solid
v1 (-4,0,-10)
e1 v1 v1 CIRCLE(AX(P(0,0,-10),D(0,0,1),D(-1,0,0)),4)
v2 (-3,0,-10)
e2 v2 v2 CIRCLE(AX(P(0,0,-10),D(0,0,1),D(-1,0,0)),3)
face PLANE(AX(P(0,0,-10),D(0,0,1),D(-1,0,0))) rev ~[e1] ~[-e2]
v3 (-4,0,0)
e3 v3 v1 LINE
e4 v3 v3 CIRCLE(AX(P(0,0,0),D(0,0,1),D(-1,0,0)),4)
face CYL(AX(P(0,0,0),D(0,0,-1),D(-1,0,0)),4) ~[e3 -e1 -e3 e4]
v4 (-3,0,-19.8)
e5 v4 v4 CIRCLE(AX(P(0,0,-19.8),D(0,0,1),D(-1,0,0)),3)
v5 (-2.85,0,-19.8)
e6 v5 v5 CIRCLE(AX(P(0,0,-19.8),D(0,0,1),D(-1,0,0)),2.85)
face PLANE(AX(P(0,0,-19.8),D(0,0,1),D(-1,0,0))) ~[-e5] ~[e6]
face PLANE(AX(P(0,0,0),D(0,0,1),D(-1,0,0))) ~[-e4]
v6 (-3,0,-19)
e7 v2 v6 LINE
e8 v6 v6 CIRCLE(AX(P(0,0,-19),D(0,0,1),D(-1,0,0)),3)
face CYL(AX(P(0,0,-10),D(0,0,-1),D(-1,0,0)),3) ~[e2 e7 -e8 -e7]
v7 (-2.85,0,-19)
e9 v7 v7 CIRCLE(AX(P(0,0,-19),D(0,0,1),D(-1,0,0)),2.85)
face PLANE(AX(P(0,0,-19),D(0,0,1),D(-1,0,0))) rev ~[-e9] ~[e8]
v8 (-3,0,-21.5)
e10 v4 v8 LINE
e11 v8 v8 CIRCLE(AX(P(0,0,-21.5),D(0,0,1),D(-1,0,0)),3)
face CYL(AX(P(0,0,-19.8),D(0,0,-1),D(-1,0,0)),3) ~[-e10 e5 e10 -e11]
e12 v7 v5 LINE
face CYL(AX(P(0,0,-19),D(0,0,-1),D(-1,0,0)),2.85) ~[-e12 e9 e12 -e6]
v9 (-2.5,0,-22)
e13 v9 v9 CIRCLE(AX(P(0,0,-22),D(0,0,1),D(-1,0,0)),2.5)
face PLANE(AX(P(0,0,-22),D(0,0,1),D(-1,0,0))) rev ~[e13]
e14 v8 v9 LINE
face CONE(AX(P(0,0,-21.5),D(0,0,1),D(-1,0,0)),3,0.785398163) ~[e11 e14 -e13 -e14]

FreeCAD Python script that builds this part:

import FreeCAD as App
import Part
import Sketcher
from FreeCAD import Vector


def edges_at(feature, points):
    """Names of the edges that pass closest to the given points."""
    edges = feature.Shape.Edges
    near = lambda p: min(range(len(edges)), key=lambda i: edges[i].distToShape(Part.Vertex(*p))[0])
    return sorted({f"Edge{near(p) + 1}" for p in points})


def add_polygon(sketch, points):
    """Adds a closed chain of lines whose ends are joined by coincident constraints."""
    first, n = sketch.GeometryCount, len(points)
    for a, b in zip(points, points[1:] + points[:1]):
        sketch.addGeometry(Part.LineSegment(App.Vector(*a, 0), App.Vector(*b, 0)), False)
    for i in range(n):
        sketch.addConstraint(Sketcher.Constraint("Coincident", first + i, 2, first + (i + 1) % n, 1))

doc = App.newDocument("Part")
body = doc.addObject("PartDesign::Body", "Body")

# Sketch on XZ plane
sketch1 = doc.addObject("Sketcher::SketchObject", "Sketch")
body.addObject(sketch1)
sketch1.AttachmentSupport = (doc.XZ_Plane, [""])
sketch1.MapMode = "FlatFace"
add_polygon(sketch1, [(-4, 0), (0, 0), (0, -22), (-3, -22), (-3, -19.8), (-2.85, -19.8), (-2.85, -19), (-3, -19), (-3, -10), (-4, -10)])  # lines 0-9
sketch1.addConstraint(Sketcher.Constraint("Horizontal", 0))
sketch1.addConstraint(Sketcher.Constraint("Vertical", 1))
sketch1.addConstraint(Sketcher.Constraint("Horizontal", 2))
sketch1.addConstraint(Sketcher.Constraint("Vertical", 3))
sketch1.addConstraint(Sketcher.Constraint("Horizontal", 4))
sketch1.addConstraint(Sketcher.Constraint("Vertical", 5))
sketch1.addConstraint(Sketcher.Constraint("Horizontal", 6))
sketch1.addConstraint(Sketcher.Constraint("Vertical", 7))
sketch1.addConstraint(Sketcher.Constraint("Horizontal", 8))
sketch1.addConstraint(Sketcher.Constraint("Vertical", 9))
sketch1.addConstraint(Sketcher.Constraint("Coincident", 0, 2, -1, 1))
sketch1.addConstraint(Sketcher.Constraint("Vertical", 3, 2, 6, 2))
sketch1.addConstraint(Sketcher.Constraint("DistanceY", 1, 2, 1, 1, 22.0))
sketch1.addConstraint(Sketcher.Constraint("DistanceY", 7, 1, 7, 2, 9.0))
sketch1.addConstraint(Sketcher.Constraint("DistanceY", 9, 1, 9, 2, 10.0))
sketch1.addConstraint(Sketcher.Constraint("DistanceY", 5, 1, 5, 2, 0.8))
sketch1.addConstraint(Sketcher.Constraint("DistanceX", 0, 1, 0, 2, 4.0))
sketch1.addConstraint(Sketcher.Constraint("DistanceX", 2, 2, 2, 1, 3.0))
sketch1.addConstraint(Sketcher.Constraint("DistanceX", 4, 1, 4, 2, 0.15))
revolution = doc.addObject("PartDesign::Revolution", "Revolution")
body.addObject(revolution)
revolution.Profile = sketch1
revolution.ReferenceAxis = (sketch1, ["V_Axis"])
revolution.Angle = 360
doc.recompute()

chamfer = doc.addObject("PartDesign::Chamfer", "Chamfer")
body.addObject(chamfer)
chamfer.Base = (revolution, edges_at(revolution, [(3, 0, -22)]))
chamfer.Size = 0.5

doc.recompute()
